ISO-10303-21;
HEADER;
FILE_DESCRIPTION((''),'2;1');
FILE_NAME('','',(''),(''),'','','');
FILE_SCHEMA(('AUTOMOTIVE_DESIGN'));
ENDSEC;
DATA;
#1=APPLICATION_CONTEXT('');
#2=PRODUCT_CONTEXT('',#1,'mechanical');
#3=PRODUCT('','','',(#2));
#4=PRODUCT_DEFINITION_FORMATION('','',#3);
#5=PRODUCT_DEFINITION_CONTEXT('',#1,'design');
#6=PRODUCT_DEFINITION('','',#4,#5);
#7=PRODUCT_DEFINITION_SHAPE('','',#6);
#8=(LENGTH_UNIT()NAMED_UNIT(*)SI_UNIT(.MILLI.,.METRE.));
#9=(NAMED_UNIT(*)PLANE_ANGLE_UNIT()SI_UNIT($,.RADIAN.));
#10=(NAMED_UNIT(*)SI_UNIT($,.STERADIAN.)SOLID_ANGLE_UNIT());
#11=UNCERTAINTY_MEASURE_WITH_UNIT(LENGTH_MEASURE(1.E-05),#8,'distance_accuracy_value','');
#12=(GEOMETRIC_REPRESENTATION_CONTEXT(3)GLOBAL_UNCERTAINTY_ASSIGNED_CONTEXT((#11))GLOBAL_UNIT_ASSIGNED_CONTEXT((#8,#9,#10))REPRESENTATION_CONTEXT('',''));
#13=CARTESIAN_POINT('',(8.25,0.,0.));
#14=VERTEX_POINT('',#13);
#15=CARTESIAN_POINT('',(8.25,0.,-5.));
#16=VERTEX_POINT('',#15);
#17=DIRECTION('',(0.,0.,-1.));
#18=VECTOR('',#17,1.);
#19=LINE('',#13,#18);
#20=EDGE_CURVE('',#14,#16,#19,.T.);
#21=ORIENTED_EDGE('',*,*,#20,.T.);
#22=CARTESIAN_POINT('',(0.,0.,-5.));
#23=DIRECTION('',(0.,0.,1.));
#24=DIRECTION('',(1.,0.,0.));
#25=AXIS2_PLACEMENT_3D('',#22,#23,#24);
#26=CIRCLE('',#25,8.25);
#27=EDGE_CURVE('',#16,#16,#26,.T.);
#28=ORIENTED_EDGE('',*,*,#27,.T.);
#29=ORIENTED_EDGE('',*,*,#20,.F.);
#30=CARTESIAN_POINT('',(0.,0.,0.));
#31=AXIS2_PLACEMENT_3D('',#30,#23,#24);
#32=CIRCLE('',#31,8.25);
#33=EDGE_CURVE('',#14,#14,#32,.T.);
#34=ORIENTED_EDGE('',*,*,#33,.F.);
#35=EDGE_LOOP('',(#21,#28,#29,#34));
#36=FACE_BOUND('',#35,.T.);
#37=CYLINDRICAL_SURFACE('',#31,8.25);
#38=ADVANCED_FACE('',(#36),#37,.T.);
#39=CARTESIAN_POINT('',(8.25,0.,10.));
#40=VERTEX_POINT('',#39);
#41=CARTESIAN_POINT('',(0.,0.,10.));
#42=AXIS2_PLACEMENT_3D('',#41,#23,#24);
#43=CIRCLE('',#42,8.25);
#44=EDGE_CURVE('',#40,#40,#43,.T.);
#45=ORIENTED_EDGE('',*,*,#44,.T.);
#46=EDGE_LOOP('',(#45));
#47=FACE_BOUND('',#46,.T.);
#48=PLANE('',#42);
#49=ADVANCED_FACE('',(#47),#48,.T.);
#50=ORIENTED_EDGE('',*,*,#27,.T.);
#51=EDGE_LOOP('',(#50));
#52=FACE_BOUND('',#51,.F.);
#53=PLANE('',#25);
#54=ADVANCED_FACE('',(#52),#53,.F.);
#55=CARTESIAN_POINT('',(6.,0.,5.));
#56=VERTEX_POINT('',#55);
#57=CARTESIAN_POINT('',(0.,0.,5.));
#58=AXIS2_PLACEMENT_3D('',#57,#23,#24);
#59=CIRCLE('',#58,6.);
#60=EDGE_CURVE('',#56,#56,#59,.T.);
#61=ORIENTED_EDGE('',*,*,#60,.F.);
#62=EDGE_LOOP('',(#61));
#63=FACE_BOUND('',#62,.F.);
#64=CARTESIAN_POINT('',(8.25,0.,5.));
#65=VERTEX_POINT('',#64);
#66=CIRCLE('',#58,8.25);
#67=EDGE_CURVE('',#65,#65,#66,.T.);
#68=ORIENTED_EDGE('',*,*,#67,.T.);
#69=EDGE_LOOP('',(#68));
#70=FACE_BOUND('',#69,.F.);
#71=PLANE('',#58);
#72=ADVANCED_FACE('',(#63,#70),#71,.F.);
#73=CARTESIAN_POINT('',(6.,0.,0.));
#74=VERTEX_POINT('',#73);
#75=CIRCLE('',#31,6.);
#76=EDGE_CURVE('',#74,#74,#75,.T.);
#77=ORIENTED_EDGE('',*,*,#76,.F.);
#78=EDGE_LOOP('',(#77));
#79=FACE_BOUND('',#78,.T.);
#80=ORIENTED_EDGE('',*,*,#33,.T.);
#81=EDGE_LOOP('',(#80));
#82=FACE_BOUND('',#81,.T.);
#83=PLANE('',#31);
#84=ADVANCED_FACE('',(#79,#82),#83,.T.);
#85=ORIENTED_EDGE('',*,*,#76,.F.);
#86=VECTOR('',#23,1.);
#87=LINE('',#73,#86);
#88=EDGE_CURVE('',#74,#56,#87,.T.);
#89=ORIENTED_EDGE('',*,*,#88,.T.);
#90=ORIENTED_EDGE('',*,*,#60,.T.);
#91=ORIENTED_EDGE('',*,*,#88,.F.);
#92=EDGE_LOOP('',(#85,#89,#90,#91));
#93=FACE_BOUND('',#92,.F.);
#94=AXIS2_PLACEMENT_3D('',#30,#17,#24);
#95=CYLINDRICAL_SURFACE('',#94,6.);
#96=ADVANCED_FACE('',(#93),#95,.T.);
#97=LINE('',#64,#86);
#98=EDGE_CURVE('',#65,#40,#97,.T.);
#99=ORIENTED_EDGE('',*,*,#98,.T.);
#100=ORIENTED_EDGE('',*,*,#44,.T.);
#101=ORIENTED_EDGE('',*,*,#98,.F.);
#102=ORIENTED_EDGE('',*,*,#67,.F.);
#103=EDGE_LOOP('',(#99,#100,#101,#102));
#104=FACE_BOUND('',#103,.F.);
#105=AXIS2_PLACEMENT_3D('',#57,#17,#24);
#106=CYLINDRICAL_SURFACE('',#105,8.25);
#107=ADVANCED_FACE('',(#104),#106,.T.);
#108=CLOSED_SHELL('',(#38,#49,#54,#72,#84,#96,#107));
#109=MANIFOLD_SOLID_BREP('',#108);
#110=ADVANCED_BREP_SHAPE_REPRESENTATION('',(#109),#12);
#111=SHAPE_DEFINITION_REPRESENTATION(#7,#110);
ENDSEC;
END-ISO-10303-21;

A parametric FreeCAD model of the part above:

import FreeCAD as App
import Part
import Sketcher
Q = App.Units.Quantity

doc = App.newDocument("Part")
body = doc.addObject("PartDesign::Body", "Body")

# Sketch on XY plane
sketch1 = doc.addObject("Sketcher::SketchObject", "Sketch")
body.addObject(sketch1)
sketch1.AttachmentSupport = (doc.XY_Plane, [""])
sketch1.MapMode = "FlatFace"
sketch1.addGeometry(Part.Circle(App.Vector(0, 0, 0), App.Vector(0, 0, 1), 8), False)
sketch1.addConstraint([
    Sketcher.Constraint("Coincident", 0, 3, -1, 1),
    Sketcher.Constraint("Diameter", 0, Q("16.5 mm")),
])
pad1 = doc.addObject("PartDesign::Pad", "Pad")
body.addObject(pad1)
pad1.Profile = sketch1
pad1.Length = 5
pad1.Reversed = True

# Sketch on XY plane
sketch2 = doc.addObject("Sketcher::SketchObject", "Sketch001")
body.addObject(sketch2)
sketch2.AttachmentSupport = (doc.XY_Plane, [""])
sketch2.MapMode = "FlatFace"
sketch2.addGeometry(Part.Circle(App.Vector(0, 0, 0), App.Vector(0, 0, 1), 6), False)
sketch2.addConstraint([
    Sketcher.Constraint("Coincident", 0, 3, -1, 1),
    Sketcher.Constraint("Diameter", 0, Q("12 mm")),
])
pad2 = doc.addObject("PartDesign::Pad", "Pad001")
body.addObject(pad2)
pad2.Profile = sketch2
pad2.Length = 5

# Sketch on XY plane
sketch3 = doc.addObject("Sketcher::SketchObject", "Sketch002")
body.addObject(sketch3)
sketch3.AttachmentSupport = (doc.XY_Plane, [""])
sketch3.MapMode = "FlatFace"
sketch3.AttachmentOffset = App.Placement(App.Vector(0, 0, 5), App.Rotation())
sketch3.addGeometry(Part.Circle(App.Vector(0, 0, 0), App.Vector(0, 0, 1), 8), False)
sketch3.addConstraint([
    Sketcher.Constraint("Coincident", 0, 3, -1, 1),
    Sketcher.Constraint("Diameter", 0, Q("16.5 mm")),
])
pad3 = doc.addObject("PartDesign::Pad", "Pad002")
body.addObject(pad3)
pad3.Profile = sketch3
pad3.Length = 5

doc.recompute()
